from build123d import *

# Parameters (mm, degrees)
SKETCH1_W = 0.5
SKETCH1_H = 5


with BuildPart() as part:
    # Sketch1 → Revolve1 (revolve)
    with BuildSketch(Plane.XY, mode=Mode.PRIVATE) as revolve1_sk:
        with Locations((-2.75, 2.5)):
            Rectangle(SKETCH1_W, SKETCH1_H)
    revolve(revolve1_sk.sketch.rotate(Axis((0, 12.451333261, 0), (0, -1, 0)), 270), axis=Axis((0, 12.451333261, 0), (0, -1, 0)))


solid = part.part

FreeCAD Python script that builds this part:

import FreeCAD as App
import Part
import Sketcher
from FreeCAD import Vector


def add_polygon(sketch, points):
    """Adds a closed chain of lines whose ends are joined by coincident constraints."""
    first, n = sketch.GeometryCount, len(points)
    for a, b in zip(points, points[1:] + points[:1]):
        sketch.addGeometry(Part.LineSegment(App.Vector(*a, 0), App.Vector(*b, 0)), False)
    for i in range(n):
        sketch.addConstraint(Sketcher.Constraint("Coincident", first + i, 2, first + (i + 1) % n, 1))

doc = App.newDocument("Part")
body = doc.addObject("PartDesign::Body", "Body")

# Sketch on XY plane
sketch1 = body.newObject("Sketcher::SketchObject", "Sketch")
sketch1.AttachmentSupport = (doc.getObject("XY_Plane"), [""])
sketch1.MapMode = "FlatFace"
add_polygon(sketch1, [(-3, 5), (-3, 0), (-2.5, 0), (-2.5, 5)])  # lines 0-3
sketch1.addConstraint([
    Sketcher.Constraint("Vertical", 0),
    Sketcher.Constraint("Horizontal", 1),
    Sketcher.Constraint("Vertical", 2),
    Sketcher.Constraint("Horizontal", 3),
    Sketcher.Constraint("PointOnObject", 0, 2, -1),
    Sketcher.Constraint("DistanceY", 0, 2, 0, 1, 5.0),
    Sketcher.Constraint("DistanceX", 1, 1, 1, 2, 0.5),
    Sketcher.Constraint("DistanceX", 0, 2, -1, 1, 3.0),
])
revolution = body.newObject("PartDesign::Revolution", "Revolution")
revolution.Profile = sketch1
revolution.ReferenceAxis = (sketch1, ["V_Axis"])
revolution.Angle = 360

doc.recompute()
